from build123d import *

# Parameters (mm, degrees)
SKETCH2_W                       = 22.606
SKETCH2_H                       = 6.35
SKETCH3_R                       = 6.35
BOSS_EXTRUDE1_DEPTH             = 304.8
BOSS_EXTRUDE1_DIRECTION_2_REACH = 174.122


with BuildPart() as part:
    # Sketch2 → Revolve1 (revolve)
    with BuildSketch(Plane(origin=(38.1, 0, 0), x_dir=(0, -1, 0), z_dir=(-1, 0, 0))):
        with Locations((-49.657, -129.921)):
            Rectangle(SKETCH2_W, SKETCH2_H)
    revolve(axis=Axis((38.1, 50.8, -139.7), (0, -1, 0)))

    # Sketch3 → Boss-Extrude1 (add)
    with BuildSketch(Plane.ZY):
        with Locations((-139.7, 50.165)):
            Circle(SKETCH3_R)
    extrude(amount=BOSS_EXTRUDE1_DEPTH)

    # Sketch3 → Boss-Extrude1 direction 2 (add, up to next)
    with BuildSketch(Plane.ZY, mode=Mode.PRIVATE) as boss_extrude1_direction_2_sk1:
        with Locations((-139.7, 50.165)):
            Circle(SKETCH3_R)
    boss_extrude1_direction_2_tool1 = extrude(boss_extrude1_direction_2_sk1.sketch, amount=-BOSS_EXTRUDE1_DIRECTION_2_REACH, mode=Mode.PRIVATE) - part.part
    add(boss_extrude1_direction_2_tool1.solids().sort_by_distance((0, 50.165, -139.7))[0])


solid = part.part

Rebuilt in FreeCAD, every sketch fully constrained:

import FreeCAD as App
import Part
import Sketcher
Q = App.Units.Quantity


def add_polygon(sketch, points):
    """Adds a closed chain of lines whose ends are joined by coincident constraints."""
    first, n = sketch.GeometryCount, len(points)
    for a, b in zip(points, points[1:] + points[:1]):
        sketch.addGeometry(Part.LineSegment(App.Vector(*a, 0), App.Vector(*b, 0)), False)
    for i in range(n):
        sketch.addConstraint(Sketcher.Constraint("Coincident", first + i, 2, first + (i + 1) % n, 1))

doc = App.newDocument("Part")
body = doc.addObject("PartDesign::Body", "Body")
body.AllowCompound = True

# Sketch on YZ plane
sketch1 = doc.addObject("Sketcher::SketchObject", "Sketch")
body.addObject(sketch1)
sketch1.AttachmentSupport = (doc.YZ_Plane, [""])
sketch1.MapMode = "FlatFace"
sketch1.AttachmentOffset = App.Placement(App.Vector(0, 0, 1.5 * 25.4), App.Rotation())
add_polygon(sketch1, [(60.96, -126.746), (60.96, -133.096), (38.354, -133.096), (38.354, -126.746)])  # lines 0-3
sketch1.addGeometry(Part.LineSegment(App.Vector(60.96, -139.7, 0), App.Vector(38.354, -139.7, 0)), True)  # axis
sketch1.addConstraint([
    Sketcher.Constraint("Vertical", 0),
    Sketcher.Constraint("Horizontal", 1),
    Sketcher.Constraint("Vertical", 2),
    Sketcher.Constraint("Horizontal", 3),
    Sketcher.Constraint("Horizontal", 4),
    Sketcher.Constraint("Vertical", 3, 2, 4, 1),
    Sketcher.Constraint("Vertical", 2, 2, 4, 2),
    Sketcher.Constraint("DistanceX", 1, 2, 1, 1, Q("0.89 in")),
    Sketcher.Constraint("DistanceY", 0, 2, 0, 1, Q("0.25 in")),
    Sketcher.Constraint("DistanceX", -1, 1, 0, 2, Q("2.4 in")),
    Sketcher.Constraint("DistanceY", 4, 1, -1, 1, Q("5.5 in")),
    Sketcher.Constraint("DistanceY", 0, 2, -1, 1, Q("5.24 in")),
])
revolution = doc.addObject("PartDesign::Revolution", "Revolution")
body.addObject(revolution)
revolution.Profile = sketch1
revolution.ReferenceAxis = (sketch1, ["Axis0"])
revolution.Angle = 360

# Sketch on YZ plane
sketch2 = doc.addObject("Sketcher::SketchObject", "Sketch001")
body.addObject(sketch2)
sketch2.AttachmentSupport = (doc.YZ_Plane, [""])
sketch2.MapMode = "FlatFace"
sketch2.addGeometry(Part.Circle(App.Vector(50.165, -139.7, 0), App.Vector(0, 0, 1), 6.35), False)
sketch2.addConstraint([
    Sketcher.Constraint("Diameter", 0, Q("0.5 in")),
    Sketcher.Constraint("DistanceY", 0, 3, -1, 1, Q("5.5 in")),
    Sketcher.Constraint("DistanceX", -1, 1, 0, 3, Q("1.975 in")),
])
pad1 = doc.addObject("PartDesign::Pad", "Pad")
body.addObject(pad1)
pad1.Profile = sketch2
pad1.Length = Q("12 in")
pad1.Reversed = True

# Sketch on YZ plane
sketch3 = doc.addObject("Sketcher::SketchObject", "Sketch002")
body.addObject(sketch3)
sketch3.AttachmentSupport = (doc.YZ_Plane, [""])
sketch3.MapMode = "FlatFace"
sketch3.addGeometry(Part.Circle(App.Vector(50.165, -139.7, 0), App.Vector(0, 0, 1), 6.35), False)
sketch3.addConstraint([
    Sketcher.Constraint("Diameter", 0, Q("0.5 in")),
    Sketcher.Constraint("DistanceY", 0, 3, -1, 1, Q("5.5 in")),
    Sketcher.Constraint("DistanceX", -1, 1, 0, 3, Q("1.975 in")),
])
pad2 = doc.addObject("PartDesign::Pad", "Pad001")
body.addObject(pad2)
pad2.Profile = sketch3
pad2.Type = "UpToFirst"

doc.recompute()
